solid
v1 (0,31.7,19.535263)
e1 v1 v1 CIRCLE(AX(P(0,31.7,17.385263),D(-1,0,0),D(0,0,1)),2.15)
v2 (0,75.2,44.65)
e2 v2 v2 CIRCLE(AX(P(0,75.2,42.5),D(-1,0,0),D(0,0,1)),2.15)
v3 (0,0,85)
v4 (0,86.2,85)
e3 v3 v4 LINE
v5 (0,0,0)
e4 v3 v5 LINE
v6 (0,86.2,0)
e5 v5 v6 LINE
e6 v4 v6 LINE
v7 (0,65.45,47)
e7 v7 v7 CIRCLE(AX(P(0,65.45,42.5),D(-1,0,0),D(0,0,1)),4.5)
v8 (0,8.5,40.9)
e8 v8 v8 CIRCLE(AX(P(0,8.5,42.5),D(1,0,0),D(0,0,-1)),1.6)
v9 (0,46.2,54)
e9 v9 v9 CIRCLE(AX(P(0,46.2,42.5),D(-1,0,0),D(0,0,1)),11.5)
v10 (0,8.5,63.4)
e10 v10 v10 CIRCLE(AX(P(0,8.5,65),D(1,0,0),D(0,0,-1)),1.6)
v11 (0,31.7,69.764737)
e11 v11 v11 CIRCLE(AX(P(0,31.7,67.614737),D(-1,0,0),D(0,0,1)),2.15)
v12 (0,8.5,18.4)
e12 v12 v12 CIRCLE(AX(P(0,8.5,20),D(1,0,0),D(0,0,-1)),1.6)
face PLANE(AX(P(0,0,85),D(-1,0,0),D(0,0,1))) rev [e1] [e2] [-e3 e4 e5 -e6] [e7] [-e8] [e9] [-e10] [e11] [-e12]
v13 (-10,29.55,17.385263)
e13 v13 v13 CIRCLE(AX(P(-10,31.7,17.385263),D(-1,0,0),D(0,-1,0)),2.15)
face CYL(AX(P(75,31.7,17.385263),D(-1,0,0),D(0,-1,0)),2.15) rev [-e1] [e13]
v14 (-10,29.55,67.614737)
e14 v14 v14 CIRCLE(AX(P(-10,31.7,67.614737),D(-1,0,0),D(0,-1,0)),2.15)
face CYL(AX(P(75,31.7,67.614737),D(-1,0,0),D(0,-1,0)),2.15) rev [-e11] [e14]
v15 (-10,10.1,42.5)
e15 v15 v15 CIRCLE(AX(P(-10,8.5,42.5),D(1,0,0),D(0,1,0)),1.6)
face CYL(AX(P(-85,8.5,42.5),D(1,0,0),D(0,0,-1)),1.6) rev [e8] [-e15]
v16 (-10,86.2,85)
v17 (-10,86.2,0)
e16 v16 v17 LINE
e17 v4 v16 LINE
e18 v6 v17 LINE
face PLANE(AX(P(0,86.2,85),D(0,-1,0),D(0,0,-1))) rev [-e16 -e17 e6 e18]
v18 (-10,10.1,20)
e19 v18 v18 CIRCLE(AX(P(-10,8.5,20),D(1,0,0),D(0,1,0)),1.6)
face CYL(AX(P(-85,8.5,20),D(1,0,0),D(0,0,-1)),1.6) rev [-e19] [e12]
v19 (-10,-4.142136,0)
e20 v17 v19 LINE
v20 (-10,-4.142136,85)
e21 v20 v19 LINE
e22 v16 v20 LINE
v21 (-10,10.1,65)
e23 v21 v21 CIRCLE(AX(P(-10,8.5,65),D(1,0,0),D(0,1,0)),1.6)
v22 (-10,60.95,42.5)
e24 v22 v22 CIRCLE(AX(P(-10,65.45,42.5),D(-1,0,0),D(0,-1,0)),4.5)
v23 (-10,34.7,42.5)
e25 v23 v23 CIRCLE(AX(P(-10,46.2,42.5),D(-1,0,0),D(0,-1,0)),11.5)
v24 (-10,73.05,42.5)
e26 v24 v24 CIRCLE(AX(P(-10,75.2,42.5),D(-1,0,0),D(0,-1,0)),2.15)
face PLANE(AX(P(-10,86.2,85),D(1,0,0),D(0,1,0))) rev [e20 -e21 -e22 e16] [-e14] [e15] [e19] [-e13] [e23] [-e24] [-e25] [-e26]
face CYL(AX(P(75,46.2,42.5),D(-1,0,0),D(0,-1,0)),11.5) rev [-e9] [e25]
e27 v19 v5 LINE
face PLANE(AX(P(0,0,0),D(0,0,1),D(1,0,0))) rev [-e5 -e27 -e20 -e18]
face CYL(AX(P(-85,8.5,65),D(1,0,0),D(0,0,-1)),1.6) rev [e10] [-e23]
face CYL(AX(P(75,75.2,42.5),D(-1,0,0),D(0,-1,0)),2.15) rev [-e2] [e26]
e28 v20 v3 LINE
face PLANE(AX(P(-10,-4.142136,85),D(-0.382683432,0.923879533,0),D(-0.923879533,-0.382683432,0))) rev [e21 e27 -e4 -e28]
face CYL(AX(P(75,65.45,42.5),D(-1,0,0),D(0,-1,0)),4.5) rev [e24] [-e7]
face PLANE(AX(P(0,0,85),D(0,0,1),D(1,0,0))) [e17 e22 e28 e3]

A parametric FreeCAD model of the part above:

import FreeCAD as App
import Part
import Sketcher
Q = App.Units.Quantity


def add_polygon(sketch, points):
    """Adds a closed chain of lines whose ends are joined by coincident constraints."""
    first, n = sketch.GeometryCount, len(points)
    for a, b in zip(points, points[1:] + points[:1]):
        sketch.addGeometry(Part.LineSegment(App.Vector(*a, 0), App.Vector(*b, 0)), False)
    for i in range(n):
        sketch.addConstraint(Sketcher.Constraint("Coincident", first + i, 2, first + (i + 1) % n, 1))

doc = App.newDocument("Part")
body = doc.addObject("PartDesign::Body", "Body")

sketch1 = doc.addObject("Sketcher::SketchObject", "Sketch")
body.addObject(sketch1)
sketch1.AttachmentSupport = (doc.XY_Plane, [""])
sketch1.MapMode = "FlatFace"
add_polygon(sketch1, [(0, 0), (0, 86), (-10, 86), (-10, -4)])
sketch1.addConstraint(Sketcher.Constraint("Vertical", 0))
sketch1.addConstraint(Sketcher.Constraint("Horizontal", 1))
sketch1.addConstraint(Sketcher.Constraint("Vertical", 2))
sketch1.addConstraint(Sketcher.Constraint("Coincident", 3, 2, -1, 1))
sketch1.addConstraint(Sketcher.Constraint("DistanceX", 1, 2, 1, 1, 10.0))
sketch1.addConstraint(Sketcher.Constraint("DistanceY", 0, 1, 0, 2, 86.2))
sketch1.addConstraint(Sketcher.Constraint("Angle", 3, Q("22.5 deg")))
pad1 = doc.addObject("PartDesign::Pad", "Pad")
body.addObject(pad1)
pad1.Profile = sketch1
pad1.Length = 85

sketch2 = doc.addObject("Sketcher::SketchObject", "Sketch001")
body.addObject(sketch2)
sketch2.AttachmentSupport = (doc.YZ_Plane, [""])
sketch2.MapMode = "FlatFace"
sketch2.AttachmentOffset = App.Placement(App.Vector(0, 0, -10), App.Rotation())
sketch2.addGeometry(Part.Circle(App.Vector(46.2, 42.5, 0), App.Vector(0, 0, 1), 11.5), False)
sketch2.addGeometry(Part.Circle(App.Vector(65.5, 42.5, 0), App.Vector(0, 0, 1), 4.5), False)
sketch2.addGeometry(Part.Circle(App.Vector(75.2, 42.5, 0), App.Vector(0, 0, 1), 2.1), False)
sketch2.addGeometry(Part.Circle(App.Vector(31.7, 67.6, 0), App.Vector(0, 0, 1), 2.1), False)
sketch2.addGeometry(Part.Circle(App.Vector(31.7, 17.4, 0), App.Vector(0, 0, 1), 2.1), False)
sketch2.addConstraint(Sketcher.Constraint("Equal", 2, 3))
sketch2.addConstraint(Sketcher.Constraint("Equal", 3, 4))
sketch2.addConstraint(Sketcher.Constraint("Horizontal", 0, 3, 1, 3))
sketch2.addConstraint(Sketcher.Constraint("Horizontal", 1, 3, 2, 3))
sketch2.addConstraint(Sketcher.Constraint("Vertical", 3, 3, 4, 3))
sketch2.addConstraint(Sketcher.Constraint("Diameter", 0, 23.0))
sketch2.addConstraint(Sketcher.Constraint("Diameter", 1, 9.0))
sketch2.addConstraint(Sketcher.Constraint("Diameter", 2, 4.3))
sketch2.addConstraint(Sketcher.Constraint("DistanceX", 0, 3, 2, 3, 29.0))
sketch2.addConstraint(Sketcher.Constraint("DistanceX", -1, 1, 0, 3, 46.2))
sketch2.addConstraint(Sketcher.Constraint("DistanceY", -1, 1, 0, 3, 42.5))
sketch2.addConstraint(Sketcher.Constraint("DistanceX", -1, 1, 3, 3, 31.7))
sketch2.addConstraint(Sketcher.Constraint("DistanceX", -1, 1, 1, 3, 65.45))
sketch2.addConstraint(Sketcher.Constraint("DistanceY", -1, 1, 3, 3, 67.614737))
sketch2.addConstraint(Sketcher.Constraint("DistanceY", -1, 1, 4, 3, 17.385263))
pocket1 = doc.addObject("PartDesign::Pocket", "Pocket")
body.addObject(pocket1)
pocket1.Profile = sketch2
pocket1.Length = 85
pocket1.Reversed = True

sketch3 = doc.addObject("Sketcher::SketchObject", "Sketch002")
body.addObject(sketch3)
sketch3.AttachmentSupport = (doc.YZ_Plane, [""])
sketch3.MapMode = "FlatFace"
sketch3.addGeometry(Part.Circle(App.Vector(8.5, 65, 0), App.Vector(0, 0, 1), 1.6), False)
sketch3.addGeometry(Part.Circle(App.Vector(8.5, 20, 0), App.Vector(0, 0, 1), 1.6), False)
sketch3.addGeometry(Part.Circle(App.Vector(8.5, 42.5, 0), App.Vector(0, 0, 1), 1.6), False)
sketch3.addConstraint(Sketcher.Constraint("Equal", 0, 1))
sketch3.addConstraint(Sketcher.Constraint("Equal", 1, 2))
sketch3.addConstraint(Sketcher.Constraint("Vertical", 0, 3, 1, 3))
sketch3.addConstraint(Sketcher.Constraint("Vertical", 1, 3, 2, 3))
sketch3.addConstraint(Sketcher.Constraint("Diameter", 0, 3.2))
sketch3.addConstraint(Sketcher.Constraint("DistanceY", -1, 1, 0, 3, 65.0))
sketch3.addConstraint(Sketcher.Constraint("DistanceY", -1, 1, 1, 3, 20.0))
sketch3.addConstraint(Sketcher.Constraint("DistanceX", -1, 1, 0, 3, 8.5))
sketch3.addConstraint(Sketcher.Constraint("DistanceY", -1, 1, 2, 3, 42.5))
pocket2 = doc.addObject("PartDesign::Pocket", "Pocket001")
body.addObject(pocket2)
pocket2.Profile = sketch3
pocket2.Length = 85

doc.recompute()
